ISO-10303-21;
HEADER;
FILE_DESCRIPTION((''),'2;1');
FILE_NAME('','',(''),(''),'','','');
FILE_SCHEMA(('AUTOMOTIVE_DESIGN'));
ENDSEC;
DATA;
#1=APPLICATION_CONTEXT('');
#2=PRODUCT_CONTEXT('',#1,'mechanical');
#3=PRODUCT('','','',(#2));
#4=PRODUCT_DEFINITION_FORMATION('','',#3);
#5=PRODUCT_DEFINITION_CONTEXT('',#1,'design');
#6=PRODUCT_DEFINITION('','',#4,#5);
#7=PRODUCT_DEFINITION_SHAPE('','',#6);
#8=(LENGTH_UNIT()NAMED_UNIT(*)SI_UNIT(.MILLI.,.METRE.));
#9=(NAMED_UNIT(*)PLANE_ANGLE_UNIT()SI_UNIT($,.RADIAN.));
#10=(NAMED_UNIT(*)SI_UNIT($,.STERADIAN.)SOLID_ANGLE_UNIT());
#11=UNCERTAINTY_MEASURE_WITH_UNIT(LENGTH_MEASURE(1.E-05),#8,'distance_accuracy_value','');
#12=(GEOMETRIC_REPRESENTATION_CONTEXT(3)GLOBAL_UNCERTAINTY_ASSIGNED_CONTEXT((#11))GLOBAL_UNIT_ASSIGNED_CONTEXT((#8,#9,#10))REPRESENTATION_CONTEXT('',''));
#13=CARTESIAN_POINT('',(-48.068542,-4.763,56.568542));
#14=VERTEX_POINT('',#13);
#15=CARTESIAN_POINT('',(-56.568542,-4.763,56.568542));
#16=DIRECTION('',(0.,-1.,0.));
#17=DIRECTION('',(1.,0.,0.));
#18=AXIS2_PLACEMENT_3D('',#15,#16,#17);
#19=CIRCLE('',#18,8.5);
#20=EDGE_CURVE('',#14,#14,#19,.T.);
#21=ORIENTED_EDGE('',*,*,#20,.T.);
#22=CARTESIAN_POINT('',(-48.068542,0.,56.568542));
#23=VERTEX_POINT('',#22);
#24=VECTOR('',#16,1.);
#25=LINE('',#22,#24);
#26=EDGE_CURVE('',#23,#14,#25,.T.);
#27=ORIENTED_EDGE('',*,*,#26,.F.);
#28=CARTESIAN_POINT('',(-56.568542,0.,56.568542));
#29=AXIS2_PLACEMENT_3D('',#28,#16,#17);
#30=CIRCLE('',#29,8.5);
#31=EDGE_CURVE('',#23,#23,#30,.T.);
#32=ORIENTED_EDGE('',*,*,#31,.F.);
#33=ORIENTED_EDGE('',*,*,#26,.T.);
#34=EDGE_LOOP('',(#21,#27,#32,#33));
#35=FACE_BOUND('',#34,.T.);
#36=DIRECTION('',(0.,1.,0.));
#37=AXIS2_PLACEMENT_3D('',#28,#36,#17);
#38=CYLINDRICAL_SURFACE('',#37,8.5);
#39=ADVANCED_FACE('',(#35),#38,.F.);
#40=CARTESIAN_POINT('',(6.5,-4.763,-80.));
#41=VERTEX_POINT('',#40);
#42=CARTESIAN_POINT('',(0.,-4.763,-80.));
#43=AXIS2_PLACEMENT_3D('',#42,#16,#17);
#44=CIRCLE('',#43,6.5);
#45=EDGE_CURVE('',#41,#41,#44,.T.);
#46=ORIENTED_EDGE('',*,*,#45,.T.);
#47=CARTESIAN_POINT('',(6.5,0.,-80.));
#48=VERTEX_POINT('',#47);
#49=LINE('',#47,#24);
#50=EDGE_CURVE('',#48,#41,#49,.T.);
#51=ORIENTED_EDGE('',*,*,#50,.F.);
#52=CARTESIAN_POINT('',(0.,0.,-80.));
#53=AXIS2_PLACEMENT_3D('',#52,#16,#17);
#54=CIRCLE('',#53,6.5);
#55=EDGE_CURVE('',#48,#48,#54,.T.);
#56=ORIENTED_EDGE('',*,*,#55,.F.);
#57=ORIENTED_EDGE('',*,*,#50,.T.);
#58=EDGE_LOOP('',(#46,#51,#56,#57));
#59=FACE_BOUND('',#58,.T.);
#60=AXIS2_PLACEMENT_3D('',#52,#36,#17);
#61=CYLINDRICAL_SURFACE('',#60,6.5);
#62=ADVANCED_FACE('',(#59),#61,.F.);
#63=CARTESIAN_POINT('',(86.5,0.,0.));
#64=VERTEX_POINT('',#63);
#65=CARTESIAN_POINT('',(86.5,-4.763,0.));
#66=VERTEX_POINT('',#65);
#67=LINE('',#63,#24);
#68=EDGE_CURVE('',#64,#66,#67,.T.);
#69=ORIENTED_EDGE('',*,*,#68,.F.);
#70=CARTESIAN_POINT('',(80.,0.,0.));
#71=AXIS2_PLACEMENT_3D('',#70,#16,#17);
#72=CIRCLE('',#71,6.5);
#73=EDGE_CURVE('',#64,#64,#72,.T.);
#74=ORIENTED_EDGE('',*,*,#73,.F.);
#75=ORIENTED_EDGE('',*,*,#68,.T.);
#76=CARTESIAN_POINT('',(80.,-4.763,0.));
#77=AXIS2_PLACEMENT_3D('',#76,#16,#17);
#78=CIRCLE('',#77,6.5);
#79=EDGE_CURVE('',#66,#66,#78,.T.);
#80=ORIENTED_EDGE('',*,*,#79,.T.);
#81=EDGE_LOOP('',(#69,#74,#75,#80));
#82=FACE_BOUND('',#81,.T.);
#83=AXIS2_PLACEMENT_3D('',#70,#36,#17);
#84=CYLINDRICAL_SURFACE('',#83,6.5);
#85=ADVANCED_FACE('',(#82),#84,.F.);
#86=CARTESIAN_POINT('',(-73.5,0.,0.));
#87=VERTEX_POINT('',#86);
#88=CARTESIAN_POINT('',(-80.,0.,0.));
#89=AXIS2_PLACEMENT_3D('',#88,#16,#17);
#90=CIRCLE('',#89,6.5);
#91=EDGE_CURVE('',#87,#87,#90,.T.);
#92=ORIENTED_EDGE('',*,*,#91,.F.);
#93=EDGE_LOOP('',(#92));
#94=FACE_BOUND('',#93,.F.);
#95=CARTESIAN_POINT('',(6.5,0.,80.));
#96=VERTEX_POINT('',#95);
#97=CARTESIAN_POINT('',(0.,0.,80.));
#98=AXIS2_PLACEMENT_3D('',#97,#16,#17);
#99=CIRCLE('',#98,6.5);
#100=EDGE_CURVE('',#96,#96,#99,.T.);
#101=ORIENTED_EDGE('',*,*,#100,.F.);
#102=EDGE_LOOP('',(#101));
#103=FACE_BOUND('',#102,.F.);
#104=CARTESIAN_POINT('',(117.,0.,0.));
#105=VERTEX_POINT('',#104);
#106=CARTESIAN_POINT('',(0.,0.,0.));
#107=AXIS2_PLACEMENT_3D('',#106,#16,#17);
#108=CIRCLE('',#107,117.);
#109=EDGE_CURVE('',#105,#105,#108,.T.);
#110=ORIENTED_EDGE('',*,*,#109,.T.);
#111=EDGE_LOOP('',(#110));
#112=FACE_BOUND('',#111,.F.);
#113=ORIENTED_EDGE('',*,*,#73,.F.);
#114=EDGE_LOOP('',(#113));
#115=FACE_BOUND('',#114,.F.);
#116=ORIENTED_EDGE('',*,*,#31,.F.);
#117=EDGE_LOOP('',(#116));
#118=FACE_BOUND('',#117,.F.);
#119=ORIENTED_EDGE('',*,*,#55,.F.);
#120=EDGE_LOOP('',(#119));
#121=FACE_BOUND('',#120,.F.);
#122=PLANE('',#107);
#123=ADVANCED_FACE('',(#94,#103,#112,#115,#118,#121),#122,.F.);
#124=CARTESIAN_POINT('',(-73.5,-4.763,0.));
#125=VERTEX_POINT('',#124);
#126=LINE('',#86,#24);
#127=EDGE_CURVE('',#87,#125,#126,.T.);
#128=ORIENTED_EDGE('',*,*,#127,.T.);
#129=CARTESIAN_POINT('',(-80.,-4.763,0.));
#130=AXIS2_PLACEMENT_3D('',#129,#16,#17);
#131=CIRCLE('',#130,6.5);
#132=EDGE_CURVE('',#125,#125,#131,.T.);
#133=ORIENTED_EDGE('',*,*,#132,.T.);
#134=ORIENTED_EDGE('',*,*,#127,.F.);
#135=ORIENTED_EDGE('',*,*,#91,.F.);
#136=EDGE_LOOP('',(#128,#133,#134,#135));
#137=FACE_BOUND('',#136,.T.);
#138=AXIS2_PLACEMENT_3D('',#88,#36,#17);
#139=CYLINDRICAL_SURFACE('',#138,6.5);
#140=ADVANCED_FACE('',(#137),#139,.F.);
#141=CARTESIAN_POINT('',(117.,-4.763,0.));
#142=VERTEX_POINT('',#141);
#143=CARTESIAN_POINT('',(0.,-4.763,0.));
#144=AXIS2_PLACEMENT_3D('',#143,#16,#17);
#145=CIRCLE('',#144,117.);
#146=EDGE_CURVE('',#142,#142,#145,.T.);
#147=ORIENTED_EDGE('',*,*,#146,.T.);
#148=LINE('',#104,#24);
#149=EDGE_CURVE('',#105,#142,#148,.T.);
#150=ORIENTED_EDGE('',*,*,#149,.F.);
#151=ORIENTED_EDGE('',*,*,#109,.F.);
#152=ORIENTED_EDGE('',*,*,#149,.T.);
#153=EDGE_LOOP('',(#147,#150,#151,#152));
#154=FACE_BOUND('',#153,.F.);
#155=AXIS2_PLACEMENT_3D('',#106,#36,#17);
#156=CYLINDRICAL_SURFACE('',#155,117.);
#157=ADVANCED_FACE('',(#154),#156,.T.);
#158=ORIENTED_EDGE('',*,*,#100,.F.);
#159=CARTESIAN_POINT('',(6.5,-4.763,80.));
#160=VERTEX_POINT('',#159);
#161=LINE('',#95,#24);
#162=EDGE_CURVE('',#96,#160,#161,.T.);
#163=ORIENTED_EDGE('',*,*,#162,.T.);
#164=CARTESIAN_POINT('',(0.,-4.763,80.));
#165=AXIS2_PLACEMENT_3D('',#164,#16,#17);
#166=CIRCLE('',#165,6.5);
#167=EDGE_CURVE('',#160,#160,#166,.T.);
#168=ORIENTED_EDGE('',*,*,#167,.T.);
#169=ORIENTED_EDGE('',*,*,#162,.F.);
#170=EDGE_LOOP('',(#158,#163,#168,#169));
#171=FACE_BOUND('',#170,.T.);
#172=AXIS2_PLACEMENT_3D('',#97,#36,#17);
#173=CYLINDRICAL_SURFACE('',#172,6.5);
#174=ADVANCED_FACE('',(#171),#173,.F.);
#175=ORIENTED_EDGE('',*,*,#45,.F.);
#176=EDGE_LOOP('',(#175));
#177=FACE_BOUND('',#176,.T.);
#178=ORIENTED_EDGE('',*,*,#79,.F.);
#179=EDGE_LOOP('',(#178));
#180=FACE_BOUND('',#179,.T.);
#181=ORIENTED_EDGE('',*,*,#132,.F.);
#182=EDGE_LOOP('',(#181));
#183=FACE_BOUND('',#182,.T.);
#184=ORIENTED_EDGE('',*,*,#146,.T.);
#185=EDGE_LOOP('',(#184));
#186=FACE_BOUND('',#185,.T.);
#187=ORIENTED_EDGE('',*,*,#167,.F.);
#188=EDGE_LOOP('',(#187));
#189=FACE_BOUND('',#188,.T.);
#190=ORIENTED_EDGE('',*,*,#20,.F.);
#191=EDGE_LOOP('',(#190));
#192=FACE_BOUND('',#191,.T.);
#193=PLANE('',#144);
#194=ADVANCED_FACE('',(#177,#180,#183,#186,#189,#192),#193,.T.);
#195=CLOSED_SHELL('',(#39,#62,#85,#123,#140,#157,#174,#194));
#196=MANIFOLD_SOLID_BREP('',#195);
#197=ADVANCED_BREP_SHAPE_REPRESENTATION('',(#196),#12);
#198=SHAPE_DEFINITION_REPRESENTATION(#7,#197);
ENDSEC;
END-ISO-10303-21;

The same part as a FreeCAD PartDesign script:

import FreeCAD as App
import Part
import Sketcher

V = App.Vector

doc = App.newDocument("Part")
body = doc.addObject("PartDesign::Body", "Body")

# Sketch on XZ plane
sketch1 = doc.addObject("Sketcher::SketchObject", "Sketch")
body.addObject(sketch1)
sketch1.AttachmentSupport = (doc.XZ_Plane, [""])
sketch1.MapMode = "FlatFace"
sketch1.addGeometry([
    Part.Circle(V(0, 0, 0), V(0, 0, 1), 117),  # 0
    Part.Circle(V(0, -80, 0), V(0, 0, 1), 6.5),  # 1
    Part.Circle(V(-80, 0, 0), V(0, 0, 1), 6.5),  # 2
    Part.Circle(V(-56.568542, 56.568542, 0), V(0, 0, 1), 8.5),  # 3
    Part.Circle(V(80, 0, 0), V(0, 0, 1), 6.5),  # 4
    Part.Circle(V(0, 80, 0), V(0, 0, 1), 6.5),  # 5
], False)
sketch1.addConstraint([
    Sketcher.Constraint("Coincident", 0, 3, -1, 1),
    Sketcher.Constraint("Equal", 1, 2),
    Sketcher.Constraint("Equal", 2, 4),
    Sketcher.Constraint("Equal", 4, 5),
    Sketcher.Constraint("Symmetric", 2, 3, 4, 3, -1, 1),
    Sketcher.Constraint("Symmetric", 1, 3, 5, 3, -1, 1),
    Sketcher.Constraint("PointOnObject", 1, 3, -2),
    Sketcher.Constraint("PointOnObject", 2, 3, -1),
    Sketcher.Constraint("Diameter", 0, 234.0),
    Sketcher.Constraint("Diameter", 1, 13.0),
    Sketcher.Constraint("Diameter", 3, 17.0),
    Sketcher.Constraint("DistanceY", 1, 3, -1, 1, 80.0),
    Sketcher.Constraint("DistanceX", 2, 3, -1, 1, 80.0),
    Sketcher.Constraint("DistanceY", 1, 3, 3, 3, 136.568542),
    Sketcher.Constraint("DistanceX", 3, 3, 4, 3, 136.568542),
])
pad1 = doc.addObject("PartDesign::Pad", "Pad")
body.addObject(pad1)
pad1.Profile = sketch1
pad1.Length = 4.763

doc.recompute()
